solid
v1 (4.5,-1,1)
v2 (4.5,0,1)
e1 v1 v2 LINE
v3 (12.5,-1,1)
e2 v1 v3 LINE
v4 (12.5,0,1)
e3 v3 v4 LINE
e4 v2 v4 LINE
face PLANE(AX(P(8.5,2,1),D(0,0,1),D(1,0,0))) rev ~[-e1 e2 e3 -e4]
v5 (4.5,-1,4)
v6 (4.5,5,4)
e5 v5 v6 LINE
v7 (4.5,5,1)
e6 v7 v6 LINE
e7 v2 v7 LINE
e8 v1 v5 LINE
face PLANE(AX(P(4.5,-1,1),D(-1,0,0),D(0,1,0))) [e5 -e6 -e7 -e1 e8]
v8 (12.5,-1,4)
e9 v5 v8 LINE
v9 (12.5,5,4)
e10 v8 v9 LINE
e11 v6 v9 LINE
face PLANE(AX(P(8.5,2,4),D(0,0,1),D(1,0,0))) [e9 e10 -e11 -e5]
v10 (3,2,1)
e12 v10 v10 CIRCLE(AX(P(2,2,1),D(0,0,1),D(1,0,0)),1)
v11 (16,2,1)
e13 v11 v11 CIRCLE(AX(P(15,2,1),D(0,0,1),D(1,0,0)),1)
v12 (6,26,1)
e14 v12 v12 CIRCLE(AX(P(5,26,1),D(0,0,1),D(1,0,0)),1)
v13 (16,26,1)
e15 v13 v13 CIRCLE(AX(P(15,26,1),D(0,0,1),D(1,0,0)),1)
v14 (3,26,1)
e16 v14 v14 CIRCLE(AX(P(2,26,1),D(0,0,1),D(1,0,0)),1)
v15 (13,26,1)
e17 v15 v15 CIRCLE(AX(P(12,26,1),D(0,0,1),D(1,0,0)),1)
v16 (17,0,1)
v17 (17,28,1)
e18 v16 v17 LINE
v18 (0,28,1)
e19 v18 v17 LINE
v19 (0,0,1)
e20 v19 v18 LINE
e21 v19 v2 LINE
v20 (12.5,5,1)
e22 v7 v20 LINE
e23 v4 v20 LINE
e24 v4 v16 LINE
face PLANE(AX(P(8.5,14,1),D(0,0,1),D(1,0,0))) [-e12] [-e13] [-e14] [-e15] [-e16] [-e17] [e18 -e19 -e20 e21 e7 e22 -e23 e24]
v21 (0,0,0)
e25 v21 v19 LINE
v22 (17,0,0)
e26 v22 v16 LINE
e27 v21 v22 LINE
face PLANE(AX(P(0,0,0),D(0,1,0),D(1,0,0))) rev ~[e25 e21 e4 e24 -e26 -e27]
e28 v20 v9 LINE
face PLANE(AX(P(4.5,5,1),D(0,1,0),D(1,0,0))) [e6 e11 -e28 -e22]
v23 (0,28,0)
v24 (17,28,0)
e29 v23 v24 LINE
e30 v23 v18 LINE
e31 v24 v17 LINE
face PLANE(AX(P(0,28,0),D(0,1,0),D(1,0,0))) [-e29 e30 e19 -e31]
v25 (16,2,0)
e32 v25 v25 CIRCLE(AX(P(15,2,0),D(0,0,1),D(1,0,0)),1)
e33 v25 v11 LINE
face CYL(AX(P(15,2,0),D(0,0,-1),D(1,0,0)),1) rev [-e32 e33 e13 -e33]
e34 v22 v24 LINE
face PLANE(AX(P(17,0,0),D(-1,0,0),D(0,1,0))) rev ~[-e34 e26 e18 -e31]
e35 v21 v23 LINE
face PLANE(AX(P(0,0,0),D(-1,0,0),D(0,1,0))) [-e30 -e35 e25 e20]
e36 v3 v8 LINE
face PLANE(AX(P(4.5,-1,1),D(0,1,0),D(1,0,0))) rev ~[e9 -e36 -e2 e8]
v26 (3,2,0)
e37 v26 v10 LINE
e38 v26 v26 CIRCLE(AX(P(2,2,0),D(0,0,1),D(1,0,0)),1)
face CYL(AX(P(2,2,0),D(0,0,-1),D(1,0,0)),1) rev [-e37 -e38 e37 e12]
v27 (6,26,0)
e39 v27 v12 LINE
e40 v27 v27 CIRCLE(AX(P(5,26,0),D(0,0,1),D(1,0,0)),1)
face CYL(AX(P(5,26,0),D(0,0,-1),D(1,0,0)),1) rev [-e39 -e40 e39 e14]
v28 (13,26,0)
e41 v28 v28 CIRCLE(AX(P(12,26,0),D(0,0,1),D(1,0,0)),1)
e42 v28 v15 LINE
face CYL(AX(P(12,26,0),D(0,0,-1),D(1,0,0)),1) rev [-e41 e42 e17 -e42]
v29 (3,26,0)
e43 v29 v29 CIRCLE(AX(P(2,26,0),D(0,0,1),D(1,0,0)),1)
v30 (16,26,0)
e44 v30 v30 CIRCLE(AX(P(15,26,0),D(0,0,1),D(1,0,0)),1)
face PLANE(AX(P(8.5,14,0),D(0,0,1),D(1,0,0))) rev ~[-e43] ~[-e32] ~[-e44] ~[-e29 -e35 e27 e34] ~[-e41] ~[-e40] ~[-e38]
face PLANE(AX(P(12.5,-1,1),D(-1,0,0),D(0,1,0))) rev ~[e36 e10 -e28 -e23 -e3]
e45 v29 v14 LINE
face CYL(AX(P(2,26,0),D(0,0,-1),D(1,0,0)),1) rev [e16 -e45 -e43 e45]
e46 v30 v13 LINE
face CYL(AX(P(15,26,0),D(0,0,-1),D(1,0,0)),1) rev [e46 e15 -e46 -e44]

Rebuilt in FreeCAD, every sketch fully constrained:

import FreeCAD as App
import Part
import Sketcher

doc = App.newDocument("Part")
params = doc.addObject("Spreadsheet::Sheet", "Params")
for row, (alias, value) in enumerate([
    ("sketch1_diameter", "2 mm"),
    ("sketch1_width", "17 mm"),
    ("sketch1_height", "28 mm"),
    ("pad1_length", "1 mm"),
    ("sketch2_width", "8 mm"),
    ("sketch2_height", "6 mm"),
    ("pad2_length", "3 mm"),
], start=1):
    params.set(f"A{row}", alias)
    params.set(f"B{row}", "=" + value)
    params.setAlias(f"B{row}", alias)

body = doc.addObject("PartDesign::Body", "Body")

# Sketch on XY plane
sketch1 = doc.addObject("Sketcher::SketchObject", "Sketch")
body.addObject(sketch1)
sketch1.AttachmentSupport = (doc.XY_Plane, [""])
sketch1.MapMode = "FlatFace"
sketch1.addGeometry([
    Part.LineSegment(App.Vector(0, 28, 0), App.Vector(0, 0, 0)),  # 0
    Part.LineSegment(App.Vector(0, 0, 0), App.Vector(17, 0, 0)),  # 1
    Part.LineSegment(App.Vector(17, 0, 0), App.Vector(17, 28, 0)),  # 2
    Part.LineSegment(App.Vector(17, 28, 0), App.Vector(0, 28, 0)),  # 3
    Part.Circle(App.Vector(2, 2, 0), App.Vector(0, 0, 1), 1),  # 4
    Part.Circle(App.Vector(15, 2, 0), App.Vector(0, 0, 1), 1),  # 5
    Part.Circle(App.Vector(2, 26, 0), App.Vector(0, 0, 1), 1),  # 6
    Part.Circle(App.Vector(5, 26, 0), App.Vector(0, 0, 1), 1),  # 7
    Part.Circle(App.Vector(12, 26, 0), App.Vector(0, 0, 1), 1),  # 8
    Part.Circle(App.Vector(15, 26, 0), App.Vector(0, 0, 1), 1),  # 9
], False)
sketch1.addConstraint([
    Sketcher.Constraint("Coincident", 0, 2, 1, 1),
    Sketcher.Constraint("Coincident", 1, 2, 2, 1),
    Sketcher.Constraint("Coincident", 2, 2, 3, 1),
    Sketcher.Constraint("Coincident", 3, 2, 0, 1),
    Sketcher.Constraint("Vertical", 0),
    Sketcher.Constraint("Horizontal", 1),
    Sketcher.Constraint("Vertical", 2),
    Sketcher.Constraint("Horizontal", 3),
    Sketcher.Constraint("Coincident", 0, 2, -1, 1),
    Sketcher.Constraint("Equal", 4, 5),
    Sketcher.Constraint("Equal", 5, 6),
    Sketcher.Constraint("Equal", 6, 7),
    Sketcher.Constraint("Equal", 7, 8),
    Sketcher.Constraint("Equal", 8, 9),
    Sketcher.Constraint("Horizontal", 4, 3, 5, 3),
    Sketcher.Constraint("Horizontal", 6, 3, 7, 3),
    Sketcher.Constraint("Horizontal", 7, 3, 8, 3),
    Sketcher.Constraint("Horizontal", 8, 3, 9, 3),
    Sketcher.Constraint("Vertical", 4, 3, 6, 3),
    Sketcher.Constraint("Vertical", 5, 3, 9, 3),
    Sketcher.Constraint("Diameter", 4, 2.0),
    Sketcher.Constraint("DistanceX", 1, 1, 1, 2, 17.0),
    Sketcher.Constraint("DistanceY", 0, 2, 0, 1, 28.0),
    Sketcher.Constraint("DistanceX", -1, 1, 4, 3, 2.0),
    Sketcher.Constraint("DistanceY", -1, 1, 4, 3, 2.0),
    Sketcher.Constraint("DistanceX", -1, 1, 5, 3, 15.0),
    Sketcher.Constraint("DistanceY", -1, 1, 6, 3, 26.0),
    Sketcher.Constraint("DistanceX", -1, 1, 7, 3, 5.0),
    Sketcher.Constraint("DistanceX", -1, 1, 8, 3, 12.0),
])
sketch1.setExpression("Constraints[20]", "Params.sketch1_diameter")
sketch1.setExpression("Constraints[21]", "Params.sketch1_width")
sketch1.setExpression("Constraints[22]", "Params.sketch1_height")
pad1 = doc.addObject("PartDesign::Pad", "Pad")
body.addObject(pad1)
pad1.Profile = sketch1
pad1.setExpression("Length", "Params.pad1_length")

# Sketch on XY plane
sketch2 = doc.addObject("Sketcher::SketchObject", "Sketch001")
body.addObject(sketch2)
sketch2.AttachmentSupport = (doc.XY_Plane, [""])
sketch2.MapMode = "FlatFace"
sketch2.AttachmentOffset = App.Placement(App.Vector(0, 0, 1), App.Rotation())
sketch2.addGeometry([
    Part.LineSegment(App.Vector(4, 5, 0), App.Vector(4, -1, 0)),
    Part.LineSegment(App.Vector(4, -1, 0), App.Vector(12, -1, 0)),
    Part.LineSegment(App.Vector(12, -1, 0), App.Vector(12, 5, 0)),
    Part.LineSegment(App.Vector(12, 5, 0), App.Vector(4, 5, 0)),
], False)
sketch2.addConstraint([
    Sketcher.Constraint("Coincident", 0, 2, 1, 1),
    Sketcher.Constraint("Coincident", 1, 2, 2, 1),
    Sketcher.Constraint("Coincident", 2, 2, 3, 1),
    Sketcher.Constraint("Coincident", 3, 2, 0, 1),
    Sketcher.Constraint("Vertical", 0),
    Sketcher.Constraint("Horizontal", 1),
    Sketcher.Constraint("Vertical", 2),
    Sketcher.Constraint("Horizontal", 3),
    Sketcher.Constraint("DistanceX", 1, 1, 1, 2, 8.0),
    Sketcher.Constraint("DistanceY", 0, 2, 0, 1, 6.0),
    Sketcher.Constraint("DistanceY", 0, 2, -1, 1, 1.0),
    Sketcher.Constraint("DistanceX", -1, 1, 0, 2, 4.5),
])
sketch2.setExpression("Constraints[8]", "Params.sketch2_width")
sketch2.setExpression("Constraints[9]", "Params.sketch2_height")
pad2 = doc.addObject("PartDesign::Pad", "Pad001")
body.addObject(pad2)
pad2.Profile = sketch2
pad2.setExpression("Length", "Params.pad2_length")

doc.recompute()
